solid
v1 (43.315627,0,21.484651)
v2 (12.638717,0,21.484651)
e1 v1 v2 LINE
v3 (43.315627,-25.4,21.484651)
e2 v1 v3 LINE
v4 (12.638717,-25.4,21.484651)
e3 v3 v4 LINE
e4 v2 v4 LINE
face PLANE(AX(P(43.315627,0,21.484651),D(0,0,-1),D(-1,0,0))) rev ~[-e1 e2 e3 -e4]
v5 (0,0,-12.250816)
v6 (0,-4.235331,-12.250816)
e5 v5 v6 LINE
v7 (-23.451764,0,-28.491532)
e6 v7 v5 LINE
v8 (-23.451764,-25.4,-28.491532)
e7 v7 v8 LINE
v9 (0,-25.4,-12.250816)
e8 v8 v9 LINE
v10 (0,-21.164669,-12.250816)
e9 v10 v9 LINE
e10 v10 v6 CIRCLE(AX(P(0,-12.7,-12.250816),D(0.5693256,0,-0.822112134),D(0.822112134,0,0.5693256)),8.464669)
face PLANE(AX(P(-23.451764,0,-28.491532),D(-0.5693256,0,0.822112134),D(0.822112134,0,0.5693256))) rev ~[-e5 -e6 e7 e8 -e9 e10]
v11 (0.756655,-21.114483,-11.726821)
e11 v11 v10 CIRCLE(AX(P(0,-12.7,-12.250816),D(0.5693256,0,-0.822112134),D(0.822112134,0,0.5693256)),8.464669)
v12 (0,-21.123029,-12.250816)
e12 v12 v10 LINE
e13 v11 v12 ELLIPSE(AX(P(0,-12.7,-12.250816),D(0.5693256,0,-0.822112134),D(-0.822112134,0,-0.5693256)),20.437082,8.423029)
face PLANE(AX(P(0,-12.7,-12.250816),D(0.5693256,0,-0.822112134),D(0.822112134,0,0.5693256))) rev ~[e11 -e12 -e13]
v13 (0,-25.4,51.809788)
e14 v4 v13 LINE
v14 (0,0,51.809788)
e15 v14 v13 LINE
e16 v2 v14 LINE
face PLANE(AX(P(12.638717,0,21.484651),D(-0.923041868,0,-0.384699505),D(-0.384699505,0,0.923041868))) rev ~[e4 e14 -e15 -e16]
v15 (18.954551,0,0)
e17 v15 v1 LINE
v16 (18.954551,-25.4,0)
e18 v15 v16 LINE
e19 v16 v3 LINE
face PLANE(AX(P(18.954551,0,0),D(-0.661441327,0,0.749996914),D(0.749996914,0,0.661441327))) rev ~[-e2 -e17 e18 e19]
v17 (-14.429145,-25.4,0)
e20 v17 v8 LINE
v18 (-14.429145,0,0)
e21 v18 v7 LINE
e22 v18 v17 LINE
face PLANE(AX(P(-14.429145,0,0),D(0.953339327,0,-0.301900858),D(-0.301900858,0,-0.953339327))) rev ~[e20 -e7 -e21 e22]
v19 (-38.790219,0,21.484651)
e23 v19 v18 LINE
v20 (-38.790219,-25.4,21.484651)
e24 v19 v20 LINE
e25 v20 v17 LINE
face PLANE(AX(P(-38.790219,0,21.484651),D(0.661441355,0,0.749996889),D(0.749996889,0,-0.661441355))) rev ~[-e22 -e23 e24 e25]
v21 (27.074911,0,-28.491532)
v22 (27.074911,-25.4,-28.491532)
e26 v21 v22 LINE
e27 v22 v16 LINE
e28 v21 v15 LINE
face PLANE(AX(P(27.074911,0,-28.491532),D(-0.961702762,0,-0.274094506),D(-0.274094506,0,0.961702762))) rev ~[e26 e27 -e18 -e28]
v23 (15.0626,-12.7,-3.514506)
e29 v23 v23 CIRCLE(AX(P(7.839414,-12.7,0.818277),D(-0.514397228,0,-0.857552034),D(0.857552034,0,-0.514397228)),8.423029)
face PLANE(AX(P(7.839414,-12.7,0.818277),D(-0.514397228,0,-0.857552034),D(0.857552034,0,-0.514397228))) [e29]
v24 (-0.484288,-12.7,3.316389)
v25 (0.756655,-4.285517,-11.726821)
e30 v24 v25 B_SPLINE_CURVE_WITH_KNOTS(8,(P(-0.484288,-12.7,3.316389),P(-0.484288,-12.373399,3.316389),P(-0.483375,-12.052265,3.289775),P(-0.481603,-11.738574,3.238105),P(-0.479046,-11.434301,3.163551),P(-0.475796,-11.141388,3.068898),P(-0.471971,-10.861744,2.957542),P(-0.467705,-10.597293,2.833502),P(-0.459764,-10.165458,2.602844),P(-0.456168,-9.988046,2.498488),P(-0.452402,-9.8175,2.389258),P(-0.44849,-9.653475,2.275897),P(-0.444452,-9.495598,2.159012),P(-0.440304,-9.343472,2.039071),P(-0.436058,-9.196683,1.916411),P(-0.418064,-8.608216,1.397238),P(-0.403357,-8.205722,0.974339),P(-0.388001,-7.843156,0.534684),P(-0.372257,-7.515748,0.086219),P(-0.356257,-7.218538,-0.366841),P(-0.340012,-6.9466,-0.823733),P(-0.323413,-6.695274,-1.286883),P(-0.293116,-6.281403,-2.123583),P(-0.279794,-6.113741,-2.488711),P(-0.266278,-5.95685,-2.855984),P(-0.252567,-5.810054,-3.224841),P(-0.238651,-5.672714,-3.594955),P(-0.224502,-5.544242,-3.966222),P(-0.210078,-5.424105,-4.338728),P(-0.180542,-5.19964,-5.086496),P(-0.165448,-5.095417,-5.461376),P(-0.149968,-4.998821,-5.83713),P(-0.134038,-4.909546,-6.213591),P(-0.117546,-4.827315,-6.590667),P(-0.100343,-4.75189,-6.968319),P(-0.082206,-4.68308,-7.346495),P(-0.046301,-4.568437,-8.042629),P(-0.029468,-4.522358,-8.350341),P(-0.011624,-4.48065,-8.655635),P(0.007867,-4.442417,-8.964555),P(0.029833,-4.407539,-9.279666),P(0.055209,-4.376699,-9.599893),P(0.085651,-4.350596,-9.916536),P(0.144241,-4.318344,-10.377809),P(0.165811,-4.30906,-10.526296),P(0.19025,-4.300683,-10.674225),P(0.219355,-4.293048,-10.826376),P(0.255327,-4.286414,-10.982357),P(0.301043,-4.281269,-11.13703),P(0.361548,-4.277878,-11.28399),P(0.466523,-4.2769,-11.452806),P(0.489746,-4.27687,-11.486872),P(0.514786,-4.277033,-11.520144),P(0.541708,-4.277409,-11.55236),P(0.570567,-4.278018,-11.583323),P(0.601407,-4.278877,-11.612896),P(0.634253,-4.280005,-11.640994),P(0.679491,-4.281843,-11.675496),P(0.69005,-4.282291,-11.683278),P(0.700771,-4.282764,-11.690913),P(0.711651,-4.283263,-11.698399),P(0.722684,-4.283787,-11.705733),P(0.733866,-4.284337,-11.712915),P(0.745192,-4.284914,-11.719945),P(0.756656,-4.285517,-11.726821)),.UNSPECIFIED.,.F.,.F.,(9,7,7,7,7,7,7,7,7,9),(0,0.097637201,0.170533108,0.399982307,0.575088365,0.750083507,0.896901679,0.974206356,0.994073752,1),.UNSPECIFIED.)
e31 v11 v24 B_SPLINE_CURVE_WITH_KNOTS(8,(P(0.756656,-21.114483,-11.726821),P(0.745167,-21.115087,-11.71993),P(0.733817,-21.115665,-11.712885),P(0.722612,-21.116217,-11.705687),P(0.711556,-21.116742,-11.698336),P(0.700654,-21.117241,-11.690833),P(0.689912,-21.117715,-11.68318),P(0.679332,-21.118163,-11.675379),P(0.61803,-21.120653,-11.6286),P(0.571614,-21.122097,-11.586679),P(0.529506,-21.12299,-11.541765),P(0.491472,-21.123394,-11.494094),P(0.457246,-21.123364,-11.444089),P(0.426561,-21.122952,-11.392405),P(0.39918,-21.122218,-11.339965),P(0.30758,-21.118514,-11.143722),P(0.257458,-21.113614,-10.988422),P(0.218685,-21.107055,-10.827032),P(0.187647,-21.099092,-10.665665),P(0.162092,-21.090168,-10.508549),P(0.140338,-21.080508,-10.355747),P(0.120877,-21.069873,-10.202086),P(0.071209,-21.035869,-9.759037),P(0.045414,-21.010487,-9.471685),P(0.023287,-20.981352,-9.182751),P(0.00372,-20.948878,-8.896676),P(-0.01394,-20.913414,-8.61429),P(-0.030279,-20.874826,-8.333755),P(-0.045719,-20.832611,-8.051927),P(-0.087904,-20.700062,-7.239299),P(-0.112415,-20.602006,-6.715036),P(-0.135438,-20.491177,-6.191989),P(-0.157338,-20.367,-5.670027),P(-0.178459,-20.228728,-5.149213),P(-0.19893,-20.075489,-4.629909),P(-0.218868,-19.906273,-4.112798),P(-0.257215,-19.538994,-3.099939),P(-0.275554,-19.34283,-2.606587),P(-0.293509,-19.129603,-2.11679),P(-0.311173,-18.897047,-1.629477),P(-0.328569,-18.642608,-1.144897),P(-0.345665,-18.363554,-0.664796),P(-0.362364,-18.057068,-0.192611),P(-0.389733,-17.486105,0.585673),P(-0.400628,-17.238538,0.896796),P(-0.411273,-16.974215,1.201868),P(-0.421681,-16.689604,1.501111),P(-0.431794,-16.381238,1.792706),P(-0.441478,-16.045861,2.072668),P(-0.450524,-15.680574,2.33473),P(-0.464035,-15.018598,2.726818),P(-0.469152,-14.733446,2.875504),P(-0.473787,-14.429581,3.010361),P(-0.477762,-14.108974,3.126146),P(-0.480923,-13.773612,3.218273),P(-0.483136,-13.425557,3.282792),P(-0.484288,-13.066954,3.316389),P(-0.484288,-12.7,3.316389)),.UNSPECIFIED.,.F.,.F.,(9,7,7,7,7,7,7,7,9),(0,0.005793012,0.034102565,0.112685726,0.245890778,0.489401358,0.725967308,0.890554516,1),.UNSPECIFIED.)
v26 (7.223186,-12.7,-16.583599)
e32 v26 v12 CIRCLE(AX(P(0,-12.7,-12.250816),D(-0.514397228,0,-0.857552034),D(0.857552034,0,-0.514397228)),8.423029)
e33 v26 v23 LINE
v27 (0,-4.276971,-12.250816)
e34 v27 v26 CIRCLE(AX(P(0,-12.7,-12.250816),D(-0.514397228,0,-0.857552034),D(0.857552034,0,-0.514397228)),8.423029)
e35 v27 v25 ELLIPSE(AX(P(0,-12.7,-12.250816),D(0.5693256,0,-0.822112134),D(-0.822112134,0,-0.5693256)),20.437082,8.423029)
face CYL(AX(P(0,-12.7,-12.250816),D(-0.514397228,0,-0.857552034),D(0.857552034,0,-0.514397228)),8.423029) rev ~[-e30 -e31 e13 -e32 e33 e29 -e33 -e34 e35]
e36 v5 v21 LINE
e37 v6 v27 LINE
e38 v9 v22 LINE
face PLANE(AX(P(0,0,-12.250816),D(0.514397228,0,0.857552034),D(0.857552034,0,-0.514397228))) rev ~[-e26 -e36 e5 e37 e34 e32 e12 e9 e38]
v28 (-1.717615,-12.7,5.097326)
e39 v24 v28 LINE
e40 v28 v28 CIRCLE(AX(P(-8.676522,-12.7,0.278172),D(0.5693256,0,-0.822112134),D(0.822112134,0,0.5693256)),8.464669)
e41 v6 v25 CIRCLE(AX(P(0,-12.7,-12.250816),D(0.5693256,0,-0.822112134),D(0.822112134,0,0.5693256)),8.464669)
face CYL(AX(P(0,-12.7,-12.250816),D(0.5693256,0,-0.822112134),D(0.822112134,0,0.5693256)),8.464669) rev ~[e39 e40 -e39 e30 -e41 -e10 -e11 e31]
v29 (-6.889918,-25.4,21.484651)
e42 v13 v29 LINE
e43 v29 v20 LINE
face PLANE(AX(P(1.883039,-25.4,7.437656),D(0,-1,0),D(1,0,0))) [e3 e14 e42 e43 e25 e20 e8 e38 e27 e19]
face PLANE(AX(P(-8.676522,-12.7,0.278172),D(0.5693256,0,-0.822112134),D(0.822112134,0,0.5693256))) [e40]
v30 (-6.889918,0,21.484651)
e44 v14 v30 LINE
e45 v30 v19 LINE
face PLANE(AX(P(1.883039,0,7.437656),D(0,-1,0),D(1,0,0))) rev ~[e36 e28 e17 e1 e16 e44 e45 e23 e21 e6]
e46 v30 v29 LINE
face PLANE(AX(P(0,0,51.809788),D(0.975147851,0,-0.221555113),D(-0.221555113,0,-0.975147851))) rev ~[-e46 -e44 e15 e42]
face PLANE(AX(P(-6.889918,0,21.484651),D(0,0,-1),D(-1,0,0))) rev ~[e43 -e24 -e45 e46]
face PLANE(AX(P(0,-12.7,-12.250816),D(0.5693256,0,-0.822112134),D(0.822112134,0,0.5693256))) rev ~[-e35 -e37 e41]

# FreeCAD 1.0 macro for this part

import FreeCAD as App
import Part
import Sketcher
Q = App.Units.Quantity

doc = App.newDocument("Part")
body = doc.addObject("PartDesign::Body", "Body")

sketch1 = body.newObject("Sketcher::SketchObject", "Sketch")
sketch1.AttachmentSupport = (doc.getObject("XZ_Plane"), [""])
sketch1.MapMode = "FlatFace"
sketch1.addGeometry([
    Part.LineSegment(App.Vector(0, 51.809788, 0), App.Vector(-6.889918, 21.484651, 0)),
    Part.LineSegment(App.Vector(-6.889918, 21.484651, 0), App.Vector(-38.790219, 21.484651, 0)),
    Part.LineSegment(App.Vector(-38.790219, 21.484651, 0), App.Vector(-14.429145, 0, 0)),
    Part.LineSegment(App.Vector(-14.429145, 0, 0), App.Vector(-23.451764, -28.491532, 0)),
    Part.LineSegment(App.Vector(-23.451764, -28.491532, 0), App.Vector(0, -12.250816, 0)),
    Part.LineSegment(App.Vector(0, -12.250816, 0), App.Vector(27.074911, -28.491532, 0)),
    Part.LineSegment(App.Vector(27.074911, -28.491532, 0), App.Vector(18.954551, 0, 0)),
    Part.LineSegment(App.Vector(18.954551, 0, 0), App.Vector(43.315627, 21.484651, 0)),
    Part.LineSegment(App.Vector(43.315627, 21.484651, 0), App.Vector(12.638717, 21.484651, 0)),
    Part.LineSegment(App.Vector(12.638717, 21.484651, 0), App.Vector(0, 51.809788, 0)),
], False)
sketch1.addConstraint([
    Sketcher.Constraint("Coincident", 0, 2, 1, 1),
    Sketcher.Constraint("Coincident", 1, 2, 2, 1),
    Sketcher.Constraint("Coincident", 2, 2, 3, 1),
    Sketcher.Constraint("Coincident", 3, 2, 4, 1),
    Sketcher.Constraint("Coincident", 4, 2, 5, 1),
    Sketcher.Constraint("Coincident", 5, 2, 6, 1),
    Sketcher.Constraint("Coincident", 6, 2, 7, 1),
    Sketcher.Constraint("Coincident", 7, 2, 8, 1),
    Sketcher.Constraint("Coincident", 8, 2, 9, 1),
    Sketcher.Constraint("Coincident", 9, 2, 0, 1),
    Sketcher.Constraint("Horizontal", 1),
    Sketcher.Constraint("Horizontal", 8),
    Sketcher.Constraint("PointOnObject", 2, 2, -1),
    Sketcher.Constraint("PointOnObject", 4, 2, -2),
    Sketcher.Constraint("PointOnObject", 6, 2, -1),
    Sketcher.Constraint("PointOnObject", 9, 2, -2),
    Sketcher.Constraint("Horizontal", 3, 2, 5, 2),
    Sketcher.Constraint("Horizontal", 1, 2, 7, 2),
    Sketcher.Constraint("Equal", 2, 7),
    Sketcher.Constraint("DistanceX", 1, 2, 1, 1, Q("31.9003 mm")),
    Sketcher.Constraint("DistanceX", 8, 2, 8, 1, Q("30.67691 mm")),
    Sketcher.Constraint("Distance", 0, Q("31.097988 mm")),
    Sketcher.Constraint("Distance", 6, Q("29.626131 mm")),
    Sketcher.Constraint("Distance", 7, Q("32.481568 mm")),
    Sketcher.Constraint("Distance", 9, Q("32.853479 mm")),
    Sketcher.Constraint("DistanceX", 0, 2, -1, 1, Q("6.889918 mm")),
    Sketcher.Constraint("DistanceY", -1, 1, 0, 2, Q("21.484651 mm")),
    Sketcher.Constraint("DistanceX", -1, 1, 5, 2, Q("27.074911 mm")),
    Sketcher.Constraint("DistanceX", 3, 2, 2, 2, Q("9.02262 mm")),
    Sketcher.Constraint("Distance", 4, Q("28.526235 mm")),
])
pad1 = body.newObject("PartDesign::Pad", "Pad")
pad1.Profile = sketch1
pad1.Length = Q("1 in")

sketch2 = body.newObject("Sketcher::SketchObject", "Sketch001")
sketch2.Placement = App.Placement(App.Vector(-5.404109, 0, -9.009195), App.Rotation(App.Vector(0.857552034, 0, -0.514397228), App.Vector(0, -0.999999999, 0), App.Vector(-0.514397228, 0, -0.857552034), "ZXY"))
sketch2.addGeometry(Part.Circle(App.Vector(6.301786, 12.7, 0), App.Vector(0, 0, 1), 8.423029), False)
sketch2.addConstraint([
    Sketcher.Constraint("DistanceY", -1, 1, 0, 3, Q("0.5 in")),
    Sketcher.Constraint("Diameter", 0, Q("16.846059 mm")),
    Sketcher.Constraint("DistanceX", -1, 1, 0, 3, Q("6.301786 mm")),
])
pocket1 = body.newObject("PartDesign::Pocket", "Pocket")
pocket1.Profile = sketch2
pocket1.Length = Q("0.6 in")

sketch3 = body.newObject("Sketcher::SketchObject", "Sketch002")
sketch3.Placement = App.Placement(App.Vector(5.733988, 0, -8.279939), App.Rotation(App.Vector(0.822112134, 0, 0.5693256), App.Vector(0, -1, 0), App.Vector(0.5693256, 0, -0.822112134), "ZXY"))
sketch3.addGeometry(Part.Circle(App.Vector(-6.974703, 12.7, 0), App.Vector(0, 0, 1), 8.464669), False)
sketch3.addConstraint([
    Sketcher.Constraint("DistanceY", -1, 1, 0, 3, Q("0.5 in")),
    Sketcher.Constraint("Diameter", 0, Q("16.929339 mm")),
    Sketcher.Constraint("DistanceX", 0, 3, -1, 1, Q("6.974703 mm")),
])
pocket2 = body.newObject("PartDesign::Pocket", "Pocket001")
pocket2.Profile = sketch3
pocket2.Length = Q("0.6 in")

doc.recompute()
